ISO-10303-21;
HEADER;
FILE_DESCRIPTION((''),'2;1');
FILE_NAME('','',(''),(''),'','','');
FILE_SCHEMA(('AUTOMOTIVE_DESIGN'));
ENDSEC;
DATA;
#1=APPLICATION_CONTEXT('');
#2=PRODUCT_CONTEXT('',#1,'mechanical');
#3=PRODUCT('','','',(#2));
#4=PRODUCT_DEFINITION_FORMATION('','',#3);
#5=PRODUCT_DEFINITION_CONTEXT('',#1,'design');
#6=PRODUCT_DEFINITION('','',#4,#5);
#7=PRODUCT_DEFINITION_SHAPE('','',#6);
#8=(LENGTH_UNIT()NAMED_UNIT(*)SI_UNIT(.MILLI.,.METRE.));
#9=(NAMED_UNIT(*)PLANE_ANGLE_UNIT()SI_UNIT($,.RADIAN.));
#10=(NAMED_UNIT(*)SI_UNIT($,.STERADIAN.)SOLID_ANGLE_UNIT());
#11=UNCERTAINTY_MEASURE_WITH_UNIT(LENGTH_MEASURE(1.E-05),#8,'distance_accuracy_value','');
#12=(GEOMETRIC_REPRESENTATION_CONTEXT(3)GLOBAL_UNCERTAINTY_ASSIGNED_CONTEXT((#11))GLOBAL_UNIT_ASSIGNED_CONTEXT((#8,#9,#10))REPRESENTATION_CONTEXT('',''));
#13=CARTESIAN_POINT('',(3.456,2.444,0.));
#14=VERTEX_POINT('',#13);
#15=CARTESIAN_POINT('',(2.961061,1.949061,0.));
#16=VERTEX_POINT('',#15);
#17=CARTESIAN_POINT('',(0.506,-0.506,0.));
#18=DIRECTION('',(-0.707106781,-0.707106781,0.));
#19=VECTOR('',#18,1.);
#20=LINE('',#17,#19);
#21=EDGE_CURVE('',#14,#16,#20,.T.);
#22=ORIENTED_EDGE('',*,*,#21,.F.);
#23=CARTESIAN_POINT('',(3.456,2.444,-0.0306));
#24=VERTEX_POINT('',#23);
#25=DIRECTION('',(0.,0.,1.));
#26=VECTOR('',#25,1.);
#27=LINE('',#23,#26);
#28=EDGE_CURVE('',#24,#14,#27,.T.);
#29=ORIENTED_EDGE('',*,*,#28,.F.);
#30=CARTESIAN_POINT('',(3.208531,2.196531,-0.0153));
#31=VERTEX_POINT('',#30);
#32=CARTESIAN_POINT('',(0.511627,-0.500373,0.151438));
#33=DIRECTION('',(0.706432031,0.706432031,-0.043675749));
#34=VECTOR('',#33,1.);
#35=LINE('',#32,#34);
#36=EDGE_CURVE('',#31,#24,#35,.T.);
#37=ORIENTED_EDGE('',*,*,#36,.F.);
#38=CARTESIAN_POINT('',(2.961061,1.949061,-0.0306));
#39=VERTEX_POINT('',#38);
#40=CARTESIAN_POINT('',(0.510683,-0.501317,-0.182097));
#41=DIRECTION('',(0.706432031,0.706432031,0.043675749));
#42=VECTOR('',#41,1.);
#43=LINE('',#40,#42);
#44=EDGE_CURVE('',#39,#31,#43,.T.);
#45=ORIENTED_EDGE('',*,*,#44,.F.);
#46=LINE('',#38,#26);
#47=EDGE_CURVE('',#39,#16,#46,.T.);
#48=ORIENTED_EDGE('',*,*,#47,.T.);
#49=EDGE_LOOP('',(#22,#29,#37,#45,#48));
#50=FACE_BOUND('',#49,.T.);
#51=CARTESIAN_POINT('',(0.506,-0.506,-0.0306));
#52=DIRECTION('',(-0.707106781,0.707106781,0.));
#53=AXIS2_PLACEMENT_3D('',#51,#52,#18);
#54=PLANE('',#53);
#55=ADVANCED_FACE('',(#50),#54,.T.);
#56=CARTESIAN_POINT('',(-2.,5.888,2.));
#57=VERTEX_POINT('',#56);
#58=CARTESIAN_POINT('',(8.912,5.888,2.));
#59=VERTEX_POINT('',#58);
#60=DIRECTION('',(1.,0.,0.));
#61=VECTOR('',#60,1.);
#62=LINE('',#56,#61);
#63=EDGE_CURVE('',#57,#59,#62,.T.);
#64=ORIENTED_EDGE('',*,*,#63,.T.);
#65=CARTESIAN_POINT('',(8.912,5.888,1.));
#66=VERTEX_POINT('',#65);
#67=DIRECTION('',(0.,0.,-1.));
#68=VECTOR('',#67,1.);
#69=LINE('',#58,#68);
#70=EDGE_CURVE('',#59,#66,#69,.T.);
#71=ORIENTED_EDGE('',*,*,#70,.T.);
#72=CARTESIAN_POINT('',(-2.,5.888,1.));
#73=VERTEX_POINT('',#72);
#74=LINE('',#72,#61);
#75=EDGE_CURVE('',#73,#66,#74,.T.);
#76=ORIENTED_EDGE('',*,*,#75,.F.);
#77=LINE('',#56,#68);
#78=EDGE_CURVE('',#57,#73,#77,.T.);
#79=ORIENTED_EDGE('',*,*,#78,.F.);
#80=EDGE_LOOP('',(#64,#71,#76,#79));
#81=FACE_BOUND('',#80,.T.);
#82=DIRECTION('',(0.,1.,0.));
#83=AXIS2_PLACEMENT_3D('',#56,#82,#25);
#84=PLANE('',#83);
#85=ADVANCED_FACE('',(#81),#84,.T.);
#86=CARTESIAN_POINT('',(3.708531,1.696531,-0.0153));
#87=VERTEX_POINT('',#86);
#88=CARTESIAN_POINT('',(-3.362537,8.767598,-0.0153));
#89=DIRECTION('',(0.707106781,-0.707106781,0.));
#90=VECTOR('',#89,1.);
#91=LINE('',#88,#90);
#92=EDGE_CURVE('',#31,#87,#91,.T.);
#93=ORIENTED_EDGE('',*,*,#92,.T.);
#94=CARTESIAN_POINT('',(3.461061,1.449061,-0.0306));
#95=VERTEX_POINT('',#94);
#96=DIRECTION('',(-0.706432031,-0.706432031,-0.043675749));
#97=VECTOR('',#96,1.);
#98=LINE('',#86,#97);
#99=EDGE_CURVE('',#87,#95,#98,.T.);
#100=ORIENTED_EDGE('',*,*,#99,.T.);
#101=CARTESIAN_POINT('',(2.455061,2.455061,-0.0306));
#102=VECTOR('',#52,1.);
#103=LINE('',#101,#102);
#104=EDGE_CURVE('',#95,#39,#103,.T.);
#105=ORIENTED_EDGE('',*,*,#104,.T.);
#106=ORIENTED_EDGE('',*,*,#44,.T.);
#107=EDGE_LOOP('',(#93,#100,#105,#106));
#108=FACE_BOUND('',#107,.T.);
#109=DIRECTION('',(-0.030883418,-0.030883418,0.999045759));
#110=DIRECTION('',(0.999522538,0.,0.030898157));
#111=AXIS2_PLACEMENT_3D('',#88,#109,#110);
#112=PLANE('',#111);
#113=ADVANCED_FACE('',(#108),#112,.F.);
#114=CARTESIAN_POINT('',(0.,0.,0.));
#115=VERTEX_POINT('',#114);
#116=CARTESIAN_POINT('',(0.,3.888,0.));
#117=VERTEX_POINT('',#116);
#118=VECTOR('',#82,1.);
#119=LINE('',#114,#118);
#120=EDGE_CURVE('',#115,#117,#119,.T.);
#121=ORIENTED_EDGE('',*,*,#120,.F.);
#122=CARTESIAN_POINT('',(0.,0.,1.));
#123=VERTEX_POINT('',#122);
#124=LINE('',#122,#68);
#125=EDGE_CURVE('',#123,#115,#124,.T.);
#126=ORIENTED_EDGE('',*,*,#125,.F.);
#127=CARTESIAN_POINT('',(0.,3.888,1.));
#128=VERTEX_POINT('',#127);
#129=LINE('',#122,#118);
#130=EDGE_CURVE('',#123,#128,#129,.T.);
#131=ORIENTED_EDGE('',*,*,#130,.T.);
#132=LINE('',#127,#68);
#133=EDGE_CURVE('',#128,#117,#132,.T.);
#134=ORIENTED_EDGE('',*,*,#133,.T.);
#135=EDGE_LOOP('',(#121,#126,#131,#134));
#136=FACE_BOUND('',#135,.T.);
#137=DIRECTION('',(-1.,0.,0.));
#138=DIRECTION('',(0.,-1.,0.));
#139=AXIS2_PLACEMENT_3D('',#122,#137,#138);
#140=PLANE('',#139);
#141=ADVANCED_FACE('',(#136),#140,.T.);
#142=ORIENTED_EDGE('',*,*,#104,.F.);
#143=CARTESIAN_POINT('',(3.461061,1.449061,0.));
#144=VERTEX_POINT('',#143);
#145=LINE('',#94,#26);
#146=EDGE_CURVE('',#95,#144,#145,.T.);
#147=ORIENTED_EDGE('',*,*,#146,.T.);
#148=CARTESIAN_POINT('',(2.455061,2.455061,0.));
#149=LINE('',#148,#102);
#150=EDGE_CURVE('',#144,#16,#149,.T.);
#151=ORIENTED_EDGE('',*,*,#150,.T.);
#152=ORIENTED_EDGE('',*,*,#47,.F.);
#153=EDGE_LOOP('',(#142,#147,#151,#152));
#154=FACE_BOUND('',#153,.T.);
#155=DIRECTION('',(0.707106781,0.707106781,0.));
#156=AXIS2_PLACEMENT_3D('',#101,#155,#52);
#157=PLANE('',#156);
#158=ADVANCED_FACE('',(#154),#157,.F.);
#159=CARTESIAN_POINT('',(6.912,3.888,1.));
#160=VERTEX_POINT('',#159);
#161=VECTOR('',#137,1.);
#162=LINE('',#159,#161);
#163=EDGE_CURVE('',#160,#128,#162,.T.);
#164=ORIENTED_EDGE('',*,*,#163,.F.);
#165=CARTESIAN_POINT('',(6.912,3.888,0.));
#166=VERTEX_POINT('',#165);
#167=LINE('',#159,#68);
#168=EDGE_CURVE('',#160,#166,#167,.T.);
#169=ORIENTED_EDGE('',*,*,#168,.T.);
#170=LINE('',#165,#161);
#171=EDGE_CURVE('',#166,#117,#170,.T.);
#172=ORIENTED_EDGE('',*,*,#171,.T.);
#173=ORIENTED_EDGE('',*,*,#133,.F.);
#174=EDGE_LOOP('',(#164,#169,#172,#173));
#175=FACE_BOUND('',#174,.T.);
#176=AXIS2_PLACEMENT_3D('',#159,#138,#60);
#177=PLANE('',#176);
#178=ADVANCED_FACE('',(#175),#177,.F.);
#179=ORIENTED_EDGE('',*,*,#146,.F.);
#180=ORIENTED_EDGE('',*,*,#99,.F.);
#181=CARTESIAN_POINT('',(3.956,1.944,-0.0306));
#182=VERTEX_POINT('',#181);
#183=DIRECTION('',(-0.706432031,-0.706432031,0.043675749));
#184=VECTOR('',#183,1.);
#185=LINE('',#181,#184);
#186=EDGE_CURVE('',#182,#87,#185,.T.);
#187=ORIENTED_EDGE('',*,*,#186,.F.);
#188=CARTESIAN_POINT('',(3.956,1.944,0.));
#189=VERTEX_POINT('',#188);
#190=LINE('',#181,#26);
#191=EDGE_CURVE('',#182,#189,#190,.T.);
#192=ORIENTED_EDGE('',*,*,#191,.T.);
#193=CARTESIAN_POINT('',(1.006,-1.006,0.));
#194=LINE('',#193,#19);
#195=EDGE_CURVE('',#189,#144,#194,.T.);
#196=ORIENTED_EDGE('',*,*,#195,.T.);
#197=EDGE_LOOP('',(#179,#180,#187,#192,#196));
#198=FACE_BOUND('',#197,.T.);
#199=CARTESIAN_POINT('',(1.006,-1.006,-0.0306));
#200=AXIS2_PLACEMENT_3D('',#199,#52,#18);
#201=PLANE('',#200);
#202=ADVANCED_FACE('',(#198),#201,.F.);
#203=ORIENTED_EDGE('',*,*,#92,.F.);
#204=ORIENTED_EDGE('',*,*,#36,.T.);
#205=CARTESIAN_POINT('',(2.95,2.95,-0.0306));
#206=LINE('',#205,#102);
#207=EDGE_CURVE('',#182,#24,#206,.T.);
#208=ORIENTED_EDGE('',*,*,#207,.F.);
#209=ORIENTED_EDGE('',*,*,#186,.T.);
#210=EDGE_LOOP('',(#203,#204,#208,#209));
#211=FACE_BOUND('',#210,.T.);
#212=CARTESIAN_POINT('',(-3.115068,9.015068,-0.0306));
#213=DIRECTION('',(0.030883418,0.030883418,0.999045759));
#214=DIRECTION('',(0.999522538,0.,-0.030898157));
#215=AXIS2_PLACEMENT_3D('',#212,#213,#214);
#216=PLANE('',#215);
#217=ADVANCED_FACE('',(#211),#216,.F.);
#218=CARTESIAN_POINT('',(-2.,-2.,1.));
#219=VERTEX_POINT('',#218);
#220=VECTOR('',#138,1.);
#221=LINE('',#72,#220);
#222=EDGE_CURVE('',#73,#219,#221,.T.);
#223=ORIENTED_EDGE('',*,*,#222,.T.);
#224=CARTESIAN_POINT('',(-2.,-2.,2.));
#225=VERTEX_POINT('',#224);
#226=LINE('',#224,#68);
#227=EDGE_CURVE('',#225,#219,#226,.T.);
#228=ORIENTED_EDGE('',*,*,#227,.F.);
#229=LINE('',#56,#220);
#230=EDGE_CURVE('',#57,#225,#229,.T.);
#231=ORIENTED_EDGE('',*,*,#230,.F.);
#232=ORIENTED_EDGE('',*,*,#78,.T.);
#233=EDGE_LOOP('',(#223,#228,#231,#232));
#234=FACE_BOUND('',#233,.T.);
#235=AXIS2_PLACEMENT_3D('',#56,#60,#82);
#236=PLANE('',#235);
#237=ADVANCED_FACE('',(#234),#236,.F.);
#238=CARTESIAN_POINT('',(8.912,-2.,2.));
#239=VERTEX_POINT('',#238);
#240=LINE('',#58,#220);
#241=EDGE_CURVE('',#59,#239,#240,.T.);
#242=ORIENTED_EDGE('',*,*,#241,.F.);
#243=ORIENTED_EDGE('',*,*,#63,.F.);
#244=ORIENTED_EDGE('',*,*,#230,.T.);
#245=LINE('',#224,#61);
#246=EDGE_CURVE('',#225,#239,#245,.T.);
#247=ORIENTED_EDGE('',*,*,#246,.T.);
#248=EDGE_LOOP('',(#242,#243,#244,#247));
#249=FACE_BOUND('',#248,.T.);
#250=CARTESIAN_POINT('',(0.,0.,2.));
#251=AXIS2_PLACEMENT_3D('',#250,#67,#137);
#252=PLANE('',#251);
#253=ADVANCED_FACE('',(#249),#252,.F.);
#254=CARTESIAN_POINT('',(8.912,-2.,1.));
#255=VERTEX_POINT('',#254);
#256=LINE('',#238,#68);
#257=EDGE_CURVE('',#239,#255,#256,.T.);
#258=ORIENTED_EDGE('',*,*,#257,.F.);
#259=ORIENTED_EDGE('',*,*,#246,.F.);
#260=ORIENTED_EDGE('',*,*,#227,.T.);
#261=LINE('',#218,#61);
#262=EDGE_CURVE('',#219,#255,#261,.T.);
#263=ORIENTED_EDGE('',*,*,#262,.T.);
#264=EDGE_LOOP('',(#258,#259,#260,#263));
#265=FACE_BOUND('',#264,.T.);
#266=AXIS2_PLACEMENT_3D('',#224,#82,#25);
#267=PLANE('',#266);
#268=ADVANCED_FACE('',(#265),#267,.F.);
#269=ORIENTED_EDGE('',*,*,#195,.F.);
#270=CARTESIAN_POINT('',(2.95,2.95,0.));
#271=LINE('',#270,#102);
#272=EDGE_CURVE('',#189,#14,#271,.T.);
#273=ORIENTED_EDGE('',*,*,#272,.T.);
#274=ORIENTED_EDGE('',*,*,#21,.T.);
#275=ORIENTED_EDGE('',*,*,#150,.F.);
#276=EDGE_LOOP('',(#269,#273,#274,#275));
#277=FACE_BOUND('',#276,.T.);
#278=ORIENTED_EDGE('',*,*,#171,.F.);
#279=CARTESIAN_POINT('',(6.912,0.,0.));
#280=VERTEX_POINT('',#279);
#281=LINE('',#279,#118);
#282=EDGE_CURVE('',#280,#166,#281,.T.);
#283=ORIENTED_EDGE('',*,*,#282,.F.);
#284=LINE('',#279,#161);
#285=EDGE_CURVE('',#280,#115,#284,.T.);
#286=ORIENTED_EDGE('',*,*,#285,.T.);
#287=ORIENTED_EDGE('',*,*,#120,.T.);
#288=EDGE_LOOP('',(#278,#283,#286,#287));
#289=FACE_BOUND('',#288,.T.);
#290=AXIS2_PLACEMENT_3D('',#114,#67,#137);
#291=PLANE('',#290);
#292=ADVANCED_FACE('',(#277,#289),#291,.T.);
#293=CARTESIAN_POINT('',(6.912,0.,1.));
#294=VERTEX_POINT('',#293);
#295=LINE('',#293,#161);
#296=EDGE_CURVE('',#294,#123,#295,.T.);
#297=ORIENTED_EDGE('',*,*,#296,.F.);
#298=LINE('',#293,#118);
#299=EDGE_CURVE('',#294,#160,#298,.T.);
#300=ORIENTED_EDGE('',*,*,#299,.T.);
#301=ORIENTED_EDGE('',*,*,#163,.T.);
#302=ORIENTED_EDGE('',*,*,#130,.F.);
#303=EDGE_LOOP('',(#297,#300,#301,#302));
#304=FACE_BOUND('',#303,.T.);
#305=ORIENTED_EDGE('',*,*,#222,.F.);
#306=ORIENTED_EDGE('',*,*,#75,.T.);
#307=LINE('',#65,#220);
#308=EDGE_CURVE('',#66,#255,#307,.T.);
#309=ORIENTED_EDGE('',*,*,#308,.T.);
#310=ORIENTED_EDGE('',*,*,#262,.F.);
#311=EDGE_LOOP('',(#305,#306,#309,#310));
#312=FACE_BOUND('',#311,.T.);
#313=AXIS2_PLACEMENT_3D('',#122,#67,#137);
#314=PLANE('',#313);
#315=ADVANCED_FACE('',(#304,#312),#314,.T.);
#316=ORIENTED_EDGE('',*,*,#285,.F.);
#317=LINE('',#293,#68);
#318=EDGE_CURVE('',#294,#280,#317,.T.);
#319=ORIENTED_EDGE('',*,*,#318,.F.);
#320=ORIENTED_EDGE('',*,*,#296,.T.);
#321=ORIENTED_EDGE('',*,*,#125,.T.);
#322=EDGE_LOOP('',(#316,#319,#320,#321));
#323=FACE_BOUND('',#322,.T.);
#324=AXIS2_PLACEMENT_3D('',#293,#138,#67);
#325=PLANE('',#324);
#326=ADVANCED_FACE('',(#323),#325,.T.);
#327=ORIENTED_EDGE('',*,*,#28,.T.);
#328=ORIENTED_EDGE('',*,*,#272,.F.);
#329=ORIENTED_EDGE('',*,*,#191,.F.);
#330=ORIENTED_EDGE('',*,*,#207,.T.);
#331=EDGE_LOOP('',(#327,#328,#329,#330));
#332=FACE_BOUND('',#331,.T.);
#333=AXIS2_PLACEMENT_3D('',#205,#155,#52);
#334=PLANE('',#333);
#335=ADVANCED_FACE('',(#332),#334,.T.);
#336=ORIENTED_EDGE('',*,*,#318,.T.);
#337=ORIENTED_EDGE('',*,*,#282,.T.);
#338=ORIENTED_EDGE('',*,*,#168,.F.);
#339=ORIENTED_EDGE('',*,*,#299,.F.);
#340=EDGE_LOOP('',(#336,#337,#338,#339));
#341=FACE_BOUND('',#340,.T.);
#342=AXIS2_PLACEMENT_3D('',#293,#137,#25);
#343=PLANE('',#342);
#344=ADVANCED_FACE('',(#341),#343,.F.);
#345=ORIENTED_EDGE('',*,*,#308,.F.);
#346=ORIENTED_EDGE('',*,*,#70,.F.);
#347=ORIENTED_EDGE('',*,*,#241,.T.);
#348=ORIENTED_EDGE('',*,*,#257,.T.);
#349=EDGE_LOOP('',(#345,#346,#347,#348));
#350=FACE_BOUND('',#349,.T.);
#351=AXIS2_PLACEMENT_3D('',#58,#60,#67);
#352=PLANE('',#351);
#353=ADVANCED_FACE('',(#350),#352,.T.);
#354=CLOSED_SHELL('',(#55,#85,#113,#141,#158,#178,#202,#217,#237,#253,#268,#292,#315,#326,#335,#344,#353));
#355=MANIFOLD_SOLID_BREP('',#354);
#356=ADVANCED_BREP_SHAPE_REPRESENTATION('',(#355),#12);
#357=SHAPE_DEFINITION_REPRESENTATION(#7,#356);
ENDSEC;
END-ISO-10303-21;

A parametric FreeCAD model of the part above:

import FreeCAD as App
import Part
import Sketcher
Q = App.Units.Quantity


def add_polygon(sketch, points):
    """Adds a closed chain of lines whose ends are joined by coincident constraints."""
    first, n = sketch.GeometryCount, len(points)
    for a, b in zip(points, points[1:] + points[:1]):
        sketch.addGeometry(Part.LineSegment(App.Vector(*a, 0), App.Vector(*b, 0)), False)
    for i in range(n):
        sketch.addConstraint(Sketcher.Constraint("Coincident", first + i, 2, first + (i + 1) % n, 1))

doc = App.newDocument("Part")
body = doc.addObject("PartDesign::Body", "Body")

sketch1 = doc.addObject("Sketcher::SketchObject", "Sketch")
body.addObject(sketch1)
sketch1.AttachmentSupport = (doc.XY_Plane, [""])
sketch1.MapMode = "FlatFace"
add_polygon(sketch1, [(0, 3.9), (0, 0), (6.9, 0), (6.9, 3.9)])
sketch1.addConstraint(Sketcher.Constraint("Vertical", 0))
sketch1.addConstraint(Sketcher.Constraint("Horizontal", 1))
sketch1.addConstraint(Sketcher.Constraint("Vertical", 2))
sketch1.addConstraint(Sketcher.Constraint("Horizontal", 3))
sketch1.addConstraint(Sketcher.Constraint("Coincident", 0, 2, -1, 1))
sketch1.addConstraint(Sketcher.Constraint("DistanceX", 1, 1, 1, 2, Q("6.912 mm")))
sketch1.addConstraint(Sketcher.Constraint("DistanceY", 0, 2, 0, 1, Q("3.888 mm")))
pad1 = doc.addObject("PartDesign::Pad", "Pad")
body.addObject(pad1)
pad1.Profile = sketch1
pad1.Length = 1

sketch2 = doc.addObject("Sketcher::SketchObject", "Sketch001")
body.addObject(sketch2)
sketch2.AttachmentSupport = (doc.XY_Plane, [""])
sketch2.MapMode = "FlatFace"
sketch2.AttachmentOffset = App.Placement(App.Vector(0, 0, 1), App.Rotation())
add_polygon(sketch2, [(-2, 6), (-2, -2), (9, -2), (9, 6)])
sketch2.addConstraint(Sketcher.Constraint("Vertical", 0))
sketch2.addConstraint(Sketcher.Constraint("Horizontal", 1))
sketch2.addConstraint(Sketcher.Constraint("Vertical", 2))
sketch2.addConstraint(Sketcher.Constraint("Horizontal", 3))
sketch2.addConstraint(Sketcher.Constraint("DistanceX", 0, 2, -1, 1, Q("2 mm")))
sketch2.addConstraint(Sketcher.Constraint("DistanceY", 0, 2, -1, 1, Q("2 mm")))
sketch2.addConstraint(Sketcher.Constraint("DistanceX", 1, 1, 1, 2, Q("10.912 mm")))
sketch2.addConstraint(Sketcher.Constraint("DistanceY", 0, 2, 0, 1, Q("7.888 mm")))
pad2 = doc.addObject("PartDesign::Pad", "Pad001")
body.addObject(pad2)
pad2.Profile = sketch2
pad2.Length = 1

sketch3 = doc.addObject("Sketcher::SketchObject", "Sketch002")
body.addObject(sketch3)
sketch3.AttachmentSupport = (doc.XY_Plane, [""])
sketch3.MapMode = "FlatFace"
add_polygon(sketch3, [(4, 1.9), (3.5, 1.4), (3, 1.9), (3.5, 2.4)])
sketch3.addConstraint(Sketcher.Constraint("Perpendicular", 0, 1))
sketch3.addConstraint(Sketcher.Constraint("Perpendicular", 1, 2))
sketch3.addConstraint(Sketcher.Constraint("Perpendicular", 2, 3))
sketch3.addConstraint(Sketcher.Constraint("Angle", 0, Q("-135 deg")))
sketch3.addConstraint(Sketcher.Constraint("DistanceX", 1, 2, 0, 2, Q("0.5 mm")))
sketch3.addConstraint(Sketcher.Constraint("DistanceX", -1, 1, 2, 2, Q("3.456 mm")))
sketch3.addConstraint(Sketcher.Constraint("DistanceY", -1, 1, 2, 2, Q("2.444 mm")))
sketch3.addConstraint(Sketcher.Constraint("Distance", 0, Q("0.699949 mm")))
pad3 = doc.addObject("PartDesign::Pad", "Pad002")
body.addObject(pad3)
pad3.Profile = sketch3
pad3.Length = 0.0306
pad3.Reversed = True

sketch4 = doc.addObject("Sketcher::SketchObject", "Sketch003")
body.addObject(sketch4)
sketch4.Placement = App.Placement(App.Vector(1.006, -1.006, 0), App.Rotation(App.Vector(0, 0, -1), App.Vector(0.707106781, 0.707106781, 0), App.Vector(0.707106781, -0.707106781, 0), "ZXY"))
add_polygon(sketch4, [(0.02, 3.82), (0.03, 3.47), (0.03, 4.17)])
sketch4.addConstraint(Sketcher.Constraint("Vertical", 1))
sketch4.addConstraint(Sketcher.Constraint("Equal", 0, 2))
sketch4.addConstraint(Sketcher.Constraint("DistanceY", 1, 1, 1, 2, Q("0.699949 mm")))
sketch4.addConstraint(Sketcher.Constraint("DistanceX", -1, 1, 0, 2, Q("0.0306 mm")))
sketch4.addConstraint(Sketcher.Constraint("DistanceX", -1, 1, 2, 2, Q("0.0153 mm")))
sketch4.addConstraint(Sketcher.Constraint("DistanceY", -1, 1, 0, 2, Q("3.471981 mm")))
pocket1 = doc.addObject("PartDesign::Pocket", "Pocket")
body.addObject(pocket1)
pocket1.Profile = sketch4
pocket1.Length = 10

doc.recompute()
